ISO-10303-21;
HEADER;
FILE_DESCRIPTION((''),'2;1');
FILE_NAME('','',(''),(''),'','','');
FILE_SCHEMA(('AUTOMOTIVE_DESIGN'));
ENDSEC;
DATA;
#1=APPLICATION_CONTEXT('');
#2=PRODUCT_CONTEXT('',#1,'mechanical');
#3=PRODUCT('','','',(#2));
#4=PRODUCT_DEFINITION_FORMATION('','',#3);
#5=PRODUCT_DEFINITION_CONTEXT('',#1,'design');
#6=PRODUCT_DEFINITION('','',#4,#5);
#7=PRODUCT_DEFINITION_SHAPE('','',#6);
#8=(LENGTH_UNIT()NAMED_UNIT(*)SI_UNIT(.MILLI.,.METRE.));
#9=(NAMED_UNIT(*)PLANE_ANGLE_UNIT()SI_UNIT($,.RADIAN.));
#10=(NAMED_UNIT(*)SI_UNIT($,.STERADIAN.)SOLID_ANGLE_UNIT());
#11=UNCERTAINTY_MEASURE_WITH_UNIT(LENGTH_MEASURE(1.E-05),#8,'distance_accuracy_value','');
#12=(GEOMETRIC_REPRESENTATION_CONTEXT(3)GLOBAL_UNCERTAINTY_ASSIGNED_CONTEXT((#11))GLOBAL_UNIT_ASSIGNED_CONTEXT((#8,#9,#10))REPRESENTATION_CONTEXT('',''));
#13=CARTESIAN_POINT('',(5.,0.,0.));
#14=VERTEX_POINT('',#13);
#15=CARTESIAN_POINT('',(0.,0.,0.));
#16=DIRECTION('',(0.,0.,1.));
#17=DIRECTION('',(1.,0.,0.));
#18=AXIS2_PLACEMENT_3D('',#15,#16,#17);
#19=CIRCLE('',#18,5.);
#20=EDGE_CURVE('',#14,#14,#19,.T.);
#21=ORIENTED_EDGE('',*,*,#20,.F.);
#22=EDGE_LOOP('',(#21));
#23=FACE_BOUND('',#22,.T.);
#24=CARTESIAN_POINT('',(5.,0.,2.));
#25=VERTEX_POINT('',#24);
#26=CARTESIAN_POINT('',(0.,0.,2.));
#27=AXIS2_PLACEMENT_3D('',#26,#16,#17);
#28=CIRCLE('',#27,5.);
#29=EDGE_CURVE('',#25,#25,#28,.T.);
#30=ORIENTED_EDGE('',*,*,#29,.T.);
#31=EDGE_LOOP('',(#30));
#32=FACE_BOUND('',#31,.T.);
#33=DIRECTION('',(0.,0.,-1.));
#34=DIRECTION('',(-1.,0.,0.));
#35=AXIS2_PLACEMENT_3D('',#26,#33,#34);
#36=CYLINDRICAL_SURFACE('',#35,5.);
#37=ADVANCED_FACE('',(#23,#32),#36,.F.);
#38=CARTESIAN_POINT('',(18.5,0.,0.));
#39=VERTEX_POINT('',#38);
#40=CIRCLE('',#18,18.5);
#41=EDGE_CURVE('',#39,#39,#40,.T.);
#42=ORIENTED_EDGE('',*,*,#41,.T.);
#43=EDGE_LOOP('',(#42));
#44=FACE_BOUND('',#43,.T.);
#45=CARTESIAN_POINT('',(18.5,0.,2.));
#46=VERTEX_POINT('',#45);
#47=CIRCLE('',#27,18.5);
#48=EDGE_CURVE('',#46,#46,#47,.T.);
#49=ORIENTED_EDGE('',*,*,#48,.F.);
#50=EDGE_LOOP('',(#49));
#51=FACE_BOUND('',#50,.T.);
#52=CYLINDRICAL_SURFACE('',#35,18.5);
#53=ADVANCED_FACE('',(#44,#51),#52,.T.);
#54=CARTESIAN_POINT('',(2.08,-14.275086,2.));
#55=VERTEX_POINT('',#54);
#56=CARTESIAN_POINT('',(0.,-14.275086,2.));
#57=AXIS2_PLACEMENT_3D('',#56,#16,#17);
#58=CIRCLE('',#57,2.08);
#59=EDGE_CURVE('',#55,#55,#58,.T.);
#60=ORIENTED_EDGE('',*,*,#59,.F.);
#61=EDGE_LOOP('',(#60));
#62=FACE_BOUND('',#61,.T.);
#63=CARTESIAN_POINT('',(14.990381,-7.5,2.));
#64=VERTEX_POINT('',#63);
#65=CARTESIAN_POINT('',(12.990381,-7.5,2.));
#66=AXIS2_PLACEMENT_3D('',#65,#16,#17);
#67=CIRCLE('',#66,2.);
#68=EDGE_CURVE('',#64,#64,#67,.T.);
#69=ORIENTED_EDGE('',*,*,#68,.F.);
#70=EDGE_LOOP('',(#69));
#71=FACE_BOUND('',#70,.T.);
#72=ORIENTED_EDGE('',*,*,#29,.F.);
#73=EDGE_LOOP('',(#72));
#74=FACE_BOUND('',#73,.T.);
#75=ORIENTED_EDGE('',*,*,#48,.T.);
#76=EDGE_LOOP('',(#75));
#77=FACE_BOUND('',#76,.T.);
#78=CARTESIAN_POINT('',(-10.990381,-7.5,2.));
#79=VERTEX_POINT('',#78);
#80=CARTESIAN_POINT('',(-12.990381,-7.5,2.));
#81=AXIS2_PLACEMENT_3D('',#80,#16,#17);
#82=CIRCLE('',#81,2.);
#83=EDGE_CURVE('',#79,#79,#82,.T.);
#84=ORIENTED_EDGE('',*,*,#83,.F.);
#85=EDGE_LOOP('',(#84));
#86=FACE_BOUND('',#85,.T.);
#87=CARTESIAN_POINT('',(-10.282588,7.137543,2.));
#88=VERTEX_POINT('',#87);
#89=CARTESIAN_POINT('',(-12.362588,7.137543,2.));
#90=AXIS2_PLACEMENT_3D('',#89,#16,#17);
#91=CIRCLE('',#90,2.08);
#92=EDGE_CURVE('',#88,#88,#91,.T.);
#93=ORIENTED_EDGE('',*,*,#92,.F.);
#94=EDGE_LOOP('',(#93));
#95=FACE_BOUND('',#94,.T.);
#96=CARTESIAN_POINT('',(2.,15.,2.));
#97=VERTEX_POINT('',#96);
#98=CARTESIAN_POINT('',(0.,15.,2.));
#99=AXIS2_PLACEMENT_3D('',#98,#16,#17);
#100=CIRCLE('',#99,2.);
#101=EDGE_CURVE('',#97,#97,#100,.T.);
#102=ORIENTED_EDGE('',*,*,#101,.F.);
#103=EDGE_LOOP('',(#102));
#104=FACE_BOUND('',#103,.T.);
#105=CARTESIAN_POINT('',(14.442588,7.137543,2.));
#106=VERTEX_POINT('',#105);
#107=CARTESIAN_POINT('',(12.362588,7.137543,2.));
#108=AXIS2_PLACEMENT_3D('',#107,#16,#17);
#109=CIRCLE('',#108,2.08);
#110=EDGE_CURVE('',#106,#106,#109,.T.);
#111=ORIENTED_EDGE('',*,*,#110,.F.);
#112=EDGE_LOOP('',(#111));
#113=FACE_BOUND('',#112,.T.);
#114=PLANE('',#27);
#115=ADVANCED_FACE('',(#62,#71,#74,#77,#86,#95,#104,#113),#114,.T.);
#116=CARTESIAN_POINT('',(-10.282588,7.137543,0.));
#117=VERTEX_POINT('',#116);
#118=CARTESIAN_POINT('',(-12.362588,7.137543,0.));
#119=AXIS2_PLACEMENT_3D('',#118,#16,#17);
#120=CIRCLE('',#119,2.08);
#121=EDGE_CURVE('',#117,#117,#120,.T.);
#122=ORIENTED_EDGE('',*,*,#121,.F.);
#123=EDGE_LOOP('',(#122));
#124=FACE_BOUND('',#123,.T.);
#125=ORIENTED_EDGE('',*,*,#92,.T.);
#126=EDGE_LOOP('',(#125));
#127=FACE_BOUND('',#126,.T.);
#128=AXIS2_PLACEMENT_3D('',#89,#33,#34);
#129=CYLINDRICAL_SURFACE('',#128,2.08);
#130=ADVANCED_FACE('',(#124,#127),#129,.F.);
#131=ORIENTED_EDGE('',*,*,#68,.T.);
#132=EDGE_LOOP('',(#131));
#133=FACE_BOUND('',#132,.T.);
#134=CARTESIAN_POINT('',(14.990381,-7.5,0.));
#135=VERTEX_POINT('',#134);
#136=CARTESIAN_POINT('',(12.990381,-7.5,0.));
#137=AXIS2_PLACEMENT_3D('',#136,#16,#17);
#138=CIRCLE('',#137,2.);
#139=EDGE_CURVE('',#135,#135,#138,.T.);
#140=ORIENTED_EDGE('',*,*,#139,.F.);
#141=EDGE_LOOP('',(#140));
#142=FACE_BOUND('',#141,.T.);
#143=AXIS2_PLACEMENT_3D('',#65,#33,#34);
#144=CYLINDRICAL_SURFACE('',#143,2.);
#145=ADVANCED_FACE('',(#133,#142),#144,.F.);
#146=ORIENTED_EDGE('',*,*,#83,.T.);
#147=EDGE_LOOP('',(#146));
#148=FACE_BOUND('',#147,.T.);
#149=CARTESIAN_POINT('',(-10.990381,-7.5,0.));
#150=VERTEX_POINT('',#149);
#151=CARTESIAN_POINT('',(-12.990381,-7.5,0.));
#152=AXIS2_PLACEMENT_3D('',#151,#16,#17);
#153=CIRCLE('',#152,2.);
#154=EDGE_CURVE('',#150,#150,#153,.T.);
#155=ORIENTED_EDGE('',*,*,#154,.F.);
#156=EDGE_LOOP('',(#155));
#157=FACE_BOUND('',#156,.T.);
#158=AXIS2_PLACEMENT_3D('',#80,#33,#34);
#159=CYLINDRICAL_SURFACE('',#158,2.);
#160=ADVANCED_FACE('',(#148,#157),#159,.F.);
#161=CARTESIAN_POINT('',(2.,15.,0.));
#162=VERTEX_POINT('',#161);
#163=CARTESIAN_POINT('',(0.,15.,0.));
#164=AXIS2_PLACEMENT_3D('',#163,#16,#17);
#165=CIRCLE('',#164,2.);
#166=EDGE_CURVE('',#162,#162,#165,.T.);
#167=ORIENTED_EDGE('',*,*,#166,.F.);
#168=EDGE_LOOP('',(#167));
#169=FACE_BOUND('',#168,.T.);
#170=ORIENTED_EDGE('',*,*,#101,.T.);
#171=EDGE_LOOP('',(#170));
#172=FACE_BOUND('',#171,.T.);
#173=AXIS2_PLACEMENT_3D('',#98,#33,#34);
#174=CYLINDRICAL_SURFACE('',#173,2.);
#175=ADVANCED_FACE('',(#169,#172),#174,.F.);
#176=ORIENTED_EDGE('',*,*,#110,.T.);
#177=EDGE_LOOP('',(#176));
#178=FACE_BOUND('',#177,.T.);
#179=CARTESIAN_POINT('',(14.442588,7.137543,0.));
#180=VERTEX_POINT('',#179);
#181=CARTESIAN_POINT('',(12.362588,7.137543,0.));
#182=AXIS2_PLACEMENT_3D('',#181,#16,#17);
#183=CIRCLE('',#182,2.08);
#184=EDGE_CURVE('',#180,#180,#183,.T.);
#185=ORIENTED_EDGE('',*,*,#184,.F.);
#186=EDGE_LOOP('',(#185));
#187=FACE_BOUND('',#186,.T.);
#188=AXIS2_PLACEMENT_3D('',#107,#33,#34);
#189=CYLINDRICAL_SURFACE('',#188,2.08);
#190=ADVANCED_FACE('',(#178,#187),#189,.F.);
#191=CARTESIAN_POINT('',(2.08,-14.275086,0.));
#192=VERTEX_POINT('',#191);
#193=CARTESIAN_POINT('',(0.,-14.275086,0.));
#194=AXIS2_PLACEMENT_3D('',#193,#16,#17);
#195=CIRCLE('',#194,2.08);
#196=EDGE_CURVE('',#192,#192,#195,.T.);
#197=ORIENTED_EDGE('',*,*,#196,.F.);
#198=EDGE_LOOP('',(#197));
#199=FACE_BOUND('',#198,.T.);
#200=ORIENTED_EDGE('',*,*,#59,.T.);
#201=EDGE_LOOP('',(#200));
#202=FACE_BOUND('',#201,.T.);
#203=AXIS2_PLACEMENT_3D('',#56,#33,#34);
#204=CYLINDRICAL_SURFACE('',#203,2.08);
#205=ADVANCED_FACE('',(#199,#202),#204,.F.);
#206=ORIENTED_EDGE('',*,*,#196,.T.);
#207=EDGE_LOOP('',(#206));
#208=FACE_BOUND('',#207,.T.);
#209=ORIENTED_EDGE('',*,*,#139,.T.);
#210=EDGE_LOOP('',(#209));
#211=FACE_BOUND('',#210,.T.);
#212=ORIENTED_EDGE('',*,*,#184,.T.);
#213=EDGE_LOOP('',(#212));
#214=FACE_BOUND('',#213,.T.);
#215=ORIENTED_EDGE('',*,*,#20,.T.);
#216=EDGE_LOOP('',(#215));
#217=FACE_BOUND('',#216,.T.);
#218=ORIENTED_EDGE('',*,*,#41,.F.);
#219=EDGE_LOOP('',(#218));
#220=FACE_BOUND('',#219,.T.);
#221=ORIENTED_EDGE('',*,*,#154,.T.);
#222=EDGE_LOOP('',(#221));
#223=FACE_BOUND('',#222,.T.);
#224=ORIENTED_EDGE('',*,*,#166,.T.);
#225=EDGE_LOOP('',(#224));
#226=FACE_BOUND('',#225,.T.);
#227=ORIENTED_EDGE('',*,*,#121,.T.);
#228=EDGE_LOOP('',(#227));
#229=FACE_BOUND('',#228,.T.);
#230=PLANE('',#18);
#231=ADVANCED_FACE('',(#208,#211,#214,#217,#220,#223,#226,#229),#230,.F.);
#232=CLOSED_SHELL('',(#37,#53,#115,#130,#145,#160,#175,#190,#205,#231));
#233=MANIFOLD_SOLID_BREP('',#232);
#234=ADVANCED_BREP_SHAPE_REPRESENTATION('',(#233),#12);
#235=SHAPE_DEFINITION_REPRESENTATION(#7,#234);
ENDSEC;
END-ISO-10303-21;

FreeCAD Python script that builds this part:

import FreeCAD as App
import Part
import Sketcher
from FreeCAD import Vector

doc = App.newDocument("Part")
body = doc.addObject("PartDesign::Body", "Body")

# Sketch on XY plane
sketch1 = doc.addObject("Sketcher::SketchObject", "Sketch")
body.addObject(sketch1)
sketch1.AttachmentSupport = (doc.XY_Plane, [""])
sketch1.MapMode = "FlatFace"
sketch1.addGeometry([
    Part.Circle(Vector(0, 0, 0), Vector(0, 0, 1), 18.5),  # 0
    Part.Circle(Vector(-12.990381, -7.5, 0), Vector(0, 0, 1), 2),  # 1
    Part.Circle(Vector(0, -14.275086, 0), Vector(0, 0, 1), 2.08),  # 2
    Part.Circle(Vector(0, 0, 0), Vector(0, 0, 1), 5),  # 3
    Part.Circle(Vector(12.990381, -7.5, 0), Vector(0, 0, 1), 2),  # 4
    Part.Circle(Vector(-12.362588, 7.137543, 0), Vector(0, 0, 1), 2.08),  # 5
    Part.Circle(Vector(12.362588, 7.137543, 0), Vector(0, 0, 1), 2.08),  # 6
    Part.Circle(Vector(0, 15, 0), Vector(0, 0, 1), 2),  # 7
], False)
sketch1.addConstraint([
    Sketcher.Constraint("Coincident", 0, 3, -1, 1),
    Sketcher.Constraint("Coincident", 3, 3, -1, 1),
    Sketcher.Constraint("Equal", 1, 4),
    Sketcher.Constraint("Equal", 2, 5),
    Sketcher.Constraint("Equal", 5, 6),
    Sketcher.Constraint("Equal", 4, 7),
    Sketcher.Constraint("Symmetric", 1, 3, 4, 3, -2),
    Sketcher.Constraint("Symmetric", 5, 3, 6, 3, -2),
    Sketcher.Constraint("PointOnObject", 2, 3, -2),
    Sketcher.Constraint("PointOnObject", 7, 3, -2),
    Sketcher.Constraint("Diameter", 0, 37.0),
    Sketcher.Constraint("Diameter", 1, 4.0),
    Sketcher.Constraint("Diameter", 3, 10.0),
    Sketcher.Constraint("Diameter", 2, 4.16),
    Sketcher.Constraint("DistanceY", -1, 1, 7, 3, 15.0),
    Sketcher.Constraint("DistanceY", 1, 3, -1, 1, 7.5),
    Sketcher.Constraint("DistanceX", 1, 3, -1, 1, 12.990381),
    Sketcher.Constraint("DistanceY", 2, 3, 5, 3, 21.41263),
    Sketcher.Constraint("DistanceX", 5, 3, 4, 3, 25.352969),
    Sketcher.Constraint("DistanceY", 2, 3, -1, 1, 14.275086),
])
pad1 = doc.addObject("PartDesign::Pad", "Pad")
body.addObject(pad1)
pad1.Profile = sketch1
pad1.Length = 2

doc.recompute()
